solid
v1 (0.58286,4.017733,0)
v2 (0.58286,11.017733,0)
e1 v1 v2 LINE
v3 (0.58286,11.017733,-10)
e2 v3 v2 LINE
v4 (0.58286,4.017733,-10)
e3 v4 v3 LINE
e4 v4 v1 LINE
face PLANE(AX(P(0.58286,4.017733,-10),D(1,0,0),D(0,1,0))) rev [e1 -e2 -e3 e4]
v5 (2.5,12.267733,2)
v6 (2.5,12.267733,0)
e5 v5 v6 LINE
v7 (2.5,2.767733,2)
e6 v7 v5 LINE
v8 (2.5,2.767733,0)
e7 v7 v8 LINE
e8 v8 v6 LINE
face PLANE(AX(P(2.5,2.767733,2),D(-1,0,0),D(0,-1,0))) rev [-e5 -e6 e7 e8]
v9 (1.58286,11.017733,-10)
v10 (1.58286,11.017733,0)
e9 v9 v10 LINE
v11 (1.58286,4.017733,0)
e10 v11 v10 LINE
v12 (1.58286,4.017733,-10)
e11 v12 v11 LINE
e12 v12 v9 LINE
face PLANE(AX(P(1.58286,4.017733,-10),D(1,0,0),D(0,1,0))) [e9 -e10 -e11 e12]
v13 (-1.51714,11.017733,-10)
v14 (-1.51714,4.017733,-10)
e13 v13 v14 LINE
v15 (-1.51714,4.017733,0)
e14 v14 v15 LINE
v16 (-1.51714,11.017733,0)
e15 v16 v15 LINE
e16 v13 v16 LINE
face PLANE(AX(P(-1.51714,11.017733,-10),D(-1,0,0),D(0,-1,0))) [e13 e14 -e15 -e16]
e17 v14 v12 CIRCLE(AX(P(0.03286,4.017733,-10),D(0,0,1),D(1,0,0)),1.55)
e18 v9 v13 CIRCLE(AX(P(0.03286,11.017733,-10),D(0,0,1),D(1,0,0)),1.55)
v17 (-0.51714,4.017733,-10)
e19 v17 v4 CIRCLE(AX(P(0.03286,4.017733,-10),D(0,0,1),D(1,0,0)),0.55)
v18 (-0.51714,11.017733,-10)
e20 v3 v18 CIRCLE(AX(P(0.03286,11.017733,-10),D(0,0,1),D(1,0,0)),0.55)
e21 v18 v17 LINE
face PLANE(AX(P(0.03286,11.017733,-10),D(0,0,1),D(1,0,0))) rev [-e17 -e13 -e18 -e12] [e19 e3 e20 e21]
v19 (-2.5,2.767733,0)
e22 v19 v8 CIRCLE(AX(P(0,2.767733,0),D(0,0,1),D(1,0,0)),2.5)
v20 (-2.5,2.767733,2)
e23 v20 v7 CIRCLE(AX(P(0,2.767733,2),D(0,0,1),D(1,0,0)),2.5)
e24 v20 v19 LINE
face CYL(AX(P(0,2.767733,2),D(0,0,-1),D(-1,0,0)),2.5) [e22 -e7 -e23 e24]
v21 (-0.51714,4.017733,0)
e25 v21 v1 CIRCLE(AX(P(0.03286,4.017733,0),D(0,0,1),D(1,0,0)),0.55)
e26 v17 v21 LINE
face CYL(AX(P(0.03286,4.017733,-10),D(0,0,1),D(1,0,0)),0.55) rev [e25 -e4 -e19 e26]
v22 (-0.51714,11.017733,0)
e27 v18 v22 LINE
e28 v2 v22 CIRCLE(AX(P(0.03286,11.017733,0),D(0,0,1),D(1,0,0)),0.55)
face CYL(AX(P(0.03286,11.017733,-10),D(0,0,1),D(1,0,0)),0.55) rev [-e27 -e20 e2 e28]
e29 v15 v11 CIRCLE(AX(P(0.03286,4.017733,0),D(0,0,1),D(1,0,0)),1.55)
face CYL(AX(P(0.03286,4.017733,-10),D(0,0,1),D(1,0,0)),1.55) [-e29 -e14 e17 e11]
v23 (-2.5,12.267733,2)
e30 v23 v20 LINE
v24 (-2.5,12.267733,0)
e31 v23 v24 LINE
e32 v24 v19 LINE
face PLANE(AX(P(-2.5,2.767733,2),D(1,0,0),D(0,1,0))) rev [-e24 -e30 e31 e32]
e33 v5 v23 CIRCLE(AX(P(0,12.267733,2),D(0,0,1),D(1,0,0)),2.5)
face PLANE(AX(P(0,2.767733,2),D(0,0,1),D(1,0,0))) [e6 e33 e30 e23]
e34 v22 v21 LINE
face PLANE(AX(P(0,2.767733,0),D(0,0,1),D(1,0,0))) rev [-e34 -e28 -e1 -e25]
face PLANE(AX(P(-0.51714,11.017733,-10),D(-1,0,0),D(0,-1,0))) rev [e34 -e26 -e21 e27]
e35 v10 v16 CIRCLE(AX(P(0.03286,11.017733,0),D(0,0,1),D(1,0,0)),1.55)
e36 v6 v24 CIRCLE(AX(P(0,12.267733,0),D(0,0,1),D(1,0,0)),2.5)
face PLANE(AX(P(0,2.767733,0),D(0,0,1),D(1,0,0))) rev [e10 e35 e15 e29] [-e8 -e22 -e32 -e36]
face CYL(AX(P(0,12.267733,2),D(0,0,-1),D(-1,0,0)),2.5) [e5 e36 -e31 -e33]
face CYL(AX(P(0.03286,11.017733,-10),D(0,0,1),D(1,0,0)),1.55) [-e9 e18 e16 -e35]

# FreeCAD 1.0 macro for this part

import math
import FreeCAD as App
import Part
import Sketcher
Q = App.Units.Quantity

doc = App.newDocument("Part")
body = doc.addObject("PartDesign::Body", "Body")

sketch1 = doc.addObject("Sketcher::SketchObject", "Sketch")
body.addObject(sketch1)
sketch1.AttachmentSupport = (doc.XY_Plane, [""])
sketch1.MapMode = "FlatFace"
sketch1.addGeometry(Part.LineSegment(App.Vector(-1.5, 11, 0), App.Vector(-1.5, 4, 0)), False)
sketch1.addGeometry(Part.ArcOfCircle(Part.Circle(App.Vector(0, 4, 0), App.Vector(0, 0, 1), 1.6), math.radians(180), math.radians(360)), False)
sketch1.addGeometry(Part.LineSegment(App.Vector(1.6, 4, 0), App.Vector(1.6, 11, 0)), False)
sketch1.addGeometry(Part.ArcOfCircle(Part.Circle(App.Vector(0, 11, 0), App.Vector(0, 0, 1), 1.6), math.radians(0), math.radians(180)), False)
sketch1.addGeometry(Part.LineSegment(App.Vector(-0.5, 4, 0), App.Vector(-0.5, 11, 0)), False)
sketch1.addGeometry(Part.ArcOfCircle(Part.Circle(App.Vector(0, 11, 0), App.Vector(0, 0, 1), 0.6), math.radians(0), math.radians(180)), False)
sketch1.addGeometry(Part.LineSegment(App.Vector(0.6, 11, 0), App.Vector(0.6, 4, 0)), False)
sketch1.addGeometry(Part.ArcOfCircle(Part.Circle(App.Vector(0, 4, 0), App.Vector(0, 0, 1), 0.6), math.radians(180), math.radians(360)), False)
sketch1.addConstraint(Sketcher.Constraint("Tangent", 0, 2, 1, 1))
sketch1.addConstraint(Sketcher.Constraint("Tangent", 1, 2, 2, 1))
sketch1.addConstraint(Sketcher.Constraint("Tangent", 2, 2, 3, 1))
sketch1.addConstraint(Sketcher.Constraint("Tangent", 3, 2, 0, 1))
sketch1.addConstraint(Sketcher.Constraint("Tangent", 4, 2, 5, 2))
sketch1.addConstraint(Sketcher.Constraint("Tangent", 5, 1, 6, 1))
sketch1.addConstraint(Sketcher.Constraint("Tangent", 6, 2, 7, 2))
sketch1.addConstraint(Sketcher.Constraint("Tangent", 7, 1, 4, 1))
sketch1.addConstraint(Sketcher.Constraint("Vertical", 0))
sketch1.addConstraint(Sketcher.Constraint("Vertical", 2))
sketch1.addConstraint(Sketcher.Constraint("Vertical", 4))
sketch1.addConstraint(Sketcher.Constraint("Vertical", 6))
sketch1.addConstraint(Sketcher.Constraint("Coincident", 5, 3, 3, 3))
sketch1.addConstraint(Sketcher.Constraint("Horizontal", 7, 3, 0, 2))
sketch1.addConstraint(Sketcher.Constraint("DistanceY", 0, 2, 0, 1, Q("7 mm")))
sketch1.addConstraint(Sketcher.Constraint("Radius", 1, Q("1.55 mm")))
sketch1.addConstraint(Sketcher.Constraint("Radius", 5, Q("0.55 mm")))
sketch1.addConstraint(Sketcher.Constraint("DistanceX", -1, 1, 1, 3, Q("0.03286 mm")))
sketch1.addConstraint(Sketcher.Constraint("DistanceY", -1, 1, 1, 3, Q("4.017733 mm")))
pad1 = doc.addObject("PartDesign::Pad", "Pad")
body.addObject(pad1)
pad1.Profile = sketch1
pad1.Length = 10
pad1.Reversed = True

sketch2 = doc.addObject("Sketcher::SketchObject", "Sketch001")
body.addObject(sketch2)
sketch2.AttachmentSupport = (doc.XY_Plane, [""])
sketch2.MapMode = "FlatFace"
sketch2.addGeometry(Part.LineSegment(App.Vector(-2.5, 12.3, 0), App.Vector(-2.5, 2.8, 0)), False)
sketch2.addGeometry(Part.ArcOfCircle(Part.Circle(App.Vector(0, 2.8, 0), App.Vector(0, 0, 1), 2.5), math.radians(180), math.radians(360)), False)
sketch2.addGeometry(Part.LineSegment(App.Vector(2.5, 2.8, 0), App.Vector(2.5, 12.3, 0)), False)
sketch2.addGeometry(Part.ArcOfCircle(Part.Circle(App.Vector(0, 12.3, 0), App.Vector(0, 0, 1), 2.5), math.radians(0), math.radians(180)), False)
sketch2.addConstraint(Sketcher.Constraint("Tangent", 0, 2, 1, 1))
sketch2.addConstraint(Sketcher.Constraint("Tangent", 1, 2, 2, 1))
sketch2.addConstraint(Sketcher.Constraint("Tangent", 2, 2, 3, 1))
sketch2.addConstraint(Sketcher.Constraint("Tangent", 3, 2, 0, 1))
sketch2.addConstraint(Sketcher.Constraint("Vertical", 0))
sketch2.addConstraint(Sketcher.Constraint("Vertical", 2))
sketch2.addConstraint(Sketcher.Constraint("PointOnObject", 1, 3, -2))
sketch2.addConstraint(Sketcher.Constraint("Radius", 1, Q("2.5 mm")))
sketch2.addConstraint(Sketcher.Constraint("DistanceY", 0, 2, 0, 1, Q("9.5 mm")))
sketch2.addConstraint(Sketcher.Constraint("DistanceY", -1, 1, 1, 3, Q("2.767733 mm")))
pad2 = doc.addObject("PartDesign::Pad", "Pad001")
body.addObject(pad2)
pad2.Profile = sketch2
pad2.Length = 2

doc.recompute()
